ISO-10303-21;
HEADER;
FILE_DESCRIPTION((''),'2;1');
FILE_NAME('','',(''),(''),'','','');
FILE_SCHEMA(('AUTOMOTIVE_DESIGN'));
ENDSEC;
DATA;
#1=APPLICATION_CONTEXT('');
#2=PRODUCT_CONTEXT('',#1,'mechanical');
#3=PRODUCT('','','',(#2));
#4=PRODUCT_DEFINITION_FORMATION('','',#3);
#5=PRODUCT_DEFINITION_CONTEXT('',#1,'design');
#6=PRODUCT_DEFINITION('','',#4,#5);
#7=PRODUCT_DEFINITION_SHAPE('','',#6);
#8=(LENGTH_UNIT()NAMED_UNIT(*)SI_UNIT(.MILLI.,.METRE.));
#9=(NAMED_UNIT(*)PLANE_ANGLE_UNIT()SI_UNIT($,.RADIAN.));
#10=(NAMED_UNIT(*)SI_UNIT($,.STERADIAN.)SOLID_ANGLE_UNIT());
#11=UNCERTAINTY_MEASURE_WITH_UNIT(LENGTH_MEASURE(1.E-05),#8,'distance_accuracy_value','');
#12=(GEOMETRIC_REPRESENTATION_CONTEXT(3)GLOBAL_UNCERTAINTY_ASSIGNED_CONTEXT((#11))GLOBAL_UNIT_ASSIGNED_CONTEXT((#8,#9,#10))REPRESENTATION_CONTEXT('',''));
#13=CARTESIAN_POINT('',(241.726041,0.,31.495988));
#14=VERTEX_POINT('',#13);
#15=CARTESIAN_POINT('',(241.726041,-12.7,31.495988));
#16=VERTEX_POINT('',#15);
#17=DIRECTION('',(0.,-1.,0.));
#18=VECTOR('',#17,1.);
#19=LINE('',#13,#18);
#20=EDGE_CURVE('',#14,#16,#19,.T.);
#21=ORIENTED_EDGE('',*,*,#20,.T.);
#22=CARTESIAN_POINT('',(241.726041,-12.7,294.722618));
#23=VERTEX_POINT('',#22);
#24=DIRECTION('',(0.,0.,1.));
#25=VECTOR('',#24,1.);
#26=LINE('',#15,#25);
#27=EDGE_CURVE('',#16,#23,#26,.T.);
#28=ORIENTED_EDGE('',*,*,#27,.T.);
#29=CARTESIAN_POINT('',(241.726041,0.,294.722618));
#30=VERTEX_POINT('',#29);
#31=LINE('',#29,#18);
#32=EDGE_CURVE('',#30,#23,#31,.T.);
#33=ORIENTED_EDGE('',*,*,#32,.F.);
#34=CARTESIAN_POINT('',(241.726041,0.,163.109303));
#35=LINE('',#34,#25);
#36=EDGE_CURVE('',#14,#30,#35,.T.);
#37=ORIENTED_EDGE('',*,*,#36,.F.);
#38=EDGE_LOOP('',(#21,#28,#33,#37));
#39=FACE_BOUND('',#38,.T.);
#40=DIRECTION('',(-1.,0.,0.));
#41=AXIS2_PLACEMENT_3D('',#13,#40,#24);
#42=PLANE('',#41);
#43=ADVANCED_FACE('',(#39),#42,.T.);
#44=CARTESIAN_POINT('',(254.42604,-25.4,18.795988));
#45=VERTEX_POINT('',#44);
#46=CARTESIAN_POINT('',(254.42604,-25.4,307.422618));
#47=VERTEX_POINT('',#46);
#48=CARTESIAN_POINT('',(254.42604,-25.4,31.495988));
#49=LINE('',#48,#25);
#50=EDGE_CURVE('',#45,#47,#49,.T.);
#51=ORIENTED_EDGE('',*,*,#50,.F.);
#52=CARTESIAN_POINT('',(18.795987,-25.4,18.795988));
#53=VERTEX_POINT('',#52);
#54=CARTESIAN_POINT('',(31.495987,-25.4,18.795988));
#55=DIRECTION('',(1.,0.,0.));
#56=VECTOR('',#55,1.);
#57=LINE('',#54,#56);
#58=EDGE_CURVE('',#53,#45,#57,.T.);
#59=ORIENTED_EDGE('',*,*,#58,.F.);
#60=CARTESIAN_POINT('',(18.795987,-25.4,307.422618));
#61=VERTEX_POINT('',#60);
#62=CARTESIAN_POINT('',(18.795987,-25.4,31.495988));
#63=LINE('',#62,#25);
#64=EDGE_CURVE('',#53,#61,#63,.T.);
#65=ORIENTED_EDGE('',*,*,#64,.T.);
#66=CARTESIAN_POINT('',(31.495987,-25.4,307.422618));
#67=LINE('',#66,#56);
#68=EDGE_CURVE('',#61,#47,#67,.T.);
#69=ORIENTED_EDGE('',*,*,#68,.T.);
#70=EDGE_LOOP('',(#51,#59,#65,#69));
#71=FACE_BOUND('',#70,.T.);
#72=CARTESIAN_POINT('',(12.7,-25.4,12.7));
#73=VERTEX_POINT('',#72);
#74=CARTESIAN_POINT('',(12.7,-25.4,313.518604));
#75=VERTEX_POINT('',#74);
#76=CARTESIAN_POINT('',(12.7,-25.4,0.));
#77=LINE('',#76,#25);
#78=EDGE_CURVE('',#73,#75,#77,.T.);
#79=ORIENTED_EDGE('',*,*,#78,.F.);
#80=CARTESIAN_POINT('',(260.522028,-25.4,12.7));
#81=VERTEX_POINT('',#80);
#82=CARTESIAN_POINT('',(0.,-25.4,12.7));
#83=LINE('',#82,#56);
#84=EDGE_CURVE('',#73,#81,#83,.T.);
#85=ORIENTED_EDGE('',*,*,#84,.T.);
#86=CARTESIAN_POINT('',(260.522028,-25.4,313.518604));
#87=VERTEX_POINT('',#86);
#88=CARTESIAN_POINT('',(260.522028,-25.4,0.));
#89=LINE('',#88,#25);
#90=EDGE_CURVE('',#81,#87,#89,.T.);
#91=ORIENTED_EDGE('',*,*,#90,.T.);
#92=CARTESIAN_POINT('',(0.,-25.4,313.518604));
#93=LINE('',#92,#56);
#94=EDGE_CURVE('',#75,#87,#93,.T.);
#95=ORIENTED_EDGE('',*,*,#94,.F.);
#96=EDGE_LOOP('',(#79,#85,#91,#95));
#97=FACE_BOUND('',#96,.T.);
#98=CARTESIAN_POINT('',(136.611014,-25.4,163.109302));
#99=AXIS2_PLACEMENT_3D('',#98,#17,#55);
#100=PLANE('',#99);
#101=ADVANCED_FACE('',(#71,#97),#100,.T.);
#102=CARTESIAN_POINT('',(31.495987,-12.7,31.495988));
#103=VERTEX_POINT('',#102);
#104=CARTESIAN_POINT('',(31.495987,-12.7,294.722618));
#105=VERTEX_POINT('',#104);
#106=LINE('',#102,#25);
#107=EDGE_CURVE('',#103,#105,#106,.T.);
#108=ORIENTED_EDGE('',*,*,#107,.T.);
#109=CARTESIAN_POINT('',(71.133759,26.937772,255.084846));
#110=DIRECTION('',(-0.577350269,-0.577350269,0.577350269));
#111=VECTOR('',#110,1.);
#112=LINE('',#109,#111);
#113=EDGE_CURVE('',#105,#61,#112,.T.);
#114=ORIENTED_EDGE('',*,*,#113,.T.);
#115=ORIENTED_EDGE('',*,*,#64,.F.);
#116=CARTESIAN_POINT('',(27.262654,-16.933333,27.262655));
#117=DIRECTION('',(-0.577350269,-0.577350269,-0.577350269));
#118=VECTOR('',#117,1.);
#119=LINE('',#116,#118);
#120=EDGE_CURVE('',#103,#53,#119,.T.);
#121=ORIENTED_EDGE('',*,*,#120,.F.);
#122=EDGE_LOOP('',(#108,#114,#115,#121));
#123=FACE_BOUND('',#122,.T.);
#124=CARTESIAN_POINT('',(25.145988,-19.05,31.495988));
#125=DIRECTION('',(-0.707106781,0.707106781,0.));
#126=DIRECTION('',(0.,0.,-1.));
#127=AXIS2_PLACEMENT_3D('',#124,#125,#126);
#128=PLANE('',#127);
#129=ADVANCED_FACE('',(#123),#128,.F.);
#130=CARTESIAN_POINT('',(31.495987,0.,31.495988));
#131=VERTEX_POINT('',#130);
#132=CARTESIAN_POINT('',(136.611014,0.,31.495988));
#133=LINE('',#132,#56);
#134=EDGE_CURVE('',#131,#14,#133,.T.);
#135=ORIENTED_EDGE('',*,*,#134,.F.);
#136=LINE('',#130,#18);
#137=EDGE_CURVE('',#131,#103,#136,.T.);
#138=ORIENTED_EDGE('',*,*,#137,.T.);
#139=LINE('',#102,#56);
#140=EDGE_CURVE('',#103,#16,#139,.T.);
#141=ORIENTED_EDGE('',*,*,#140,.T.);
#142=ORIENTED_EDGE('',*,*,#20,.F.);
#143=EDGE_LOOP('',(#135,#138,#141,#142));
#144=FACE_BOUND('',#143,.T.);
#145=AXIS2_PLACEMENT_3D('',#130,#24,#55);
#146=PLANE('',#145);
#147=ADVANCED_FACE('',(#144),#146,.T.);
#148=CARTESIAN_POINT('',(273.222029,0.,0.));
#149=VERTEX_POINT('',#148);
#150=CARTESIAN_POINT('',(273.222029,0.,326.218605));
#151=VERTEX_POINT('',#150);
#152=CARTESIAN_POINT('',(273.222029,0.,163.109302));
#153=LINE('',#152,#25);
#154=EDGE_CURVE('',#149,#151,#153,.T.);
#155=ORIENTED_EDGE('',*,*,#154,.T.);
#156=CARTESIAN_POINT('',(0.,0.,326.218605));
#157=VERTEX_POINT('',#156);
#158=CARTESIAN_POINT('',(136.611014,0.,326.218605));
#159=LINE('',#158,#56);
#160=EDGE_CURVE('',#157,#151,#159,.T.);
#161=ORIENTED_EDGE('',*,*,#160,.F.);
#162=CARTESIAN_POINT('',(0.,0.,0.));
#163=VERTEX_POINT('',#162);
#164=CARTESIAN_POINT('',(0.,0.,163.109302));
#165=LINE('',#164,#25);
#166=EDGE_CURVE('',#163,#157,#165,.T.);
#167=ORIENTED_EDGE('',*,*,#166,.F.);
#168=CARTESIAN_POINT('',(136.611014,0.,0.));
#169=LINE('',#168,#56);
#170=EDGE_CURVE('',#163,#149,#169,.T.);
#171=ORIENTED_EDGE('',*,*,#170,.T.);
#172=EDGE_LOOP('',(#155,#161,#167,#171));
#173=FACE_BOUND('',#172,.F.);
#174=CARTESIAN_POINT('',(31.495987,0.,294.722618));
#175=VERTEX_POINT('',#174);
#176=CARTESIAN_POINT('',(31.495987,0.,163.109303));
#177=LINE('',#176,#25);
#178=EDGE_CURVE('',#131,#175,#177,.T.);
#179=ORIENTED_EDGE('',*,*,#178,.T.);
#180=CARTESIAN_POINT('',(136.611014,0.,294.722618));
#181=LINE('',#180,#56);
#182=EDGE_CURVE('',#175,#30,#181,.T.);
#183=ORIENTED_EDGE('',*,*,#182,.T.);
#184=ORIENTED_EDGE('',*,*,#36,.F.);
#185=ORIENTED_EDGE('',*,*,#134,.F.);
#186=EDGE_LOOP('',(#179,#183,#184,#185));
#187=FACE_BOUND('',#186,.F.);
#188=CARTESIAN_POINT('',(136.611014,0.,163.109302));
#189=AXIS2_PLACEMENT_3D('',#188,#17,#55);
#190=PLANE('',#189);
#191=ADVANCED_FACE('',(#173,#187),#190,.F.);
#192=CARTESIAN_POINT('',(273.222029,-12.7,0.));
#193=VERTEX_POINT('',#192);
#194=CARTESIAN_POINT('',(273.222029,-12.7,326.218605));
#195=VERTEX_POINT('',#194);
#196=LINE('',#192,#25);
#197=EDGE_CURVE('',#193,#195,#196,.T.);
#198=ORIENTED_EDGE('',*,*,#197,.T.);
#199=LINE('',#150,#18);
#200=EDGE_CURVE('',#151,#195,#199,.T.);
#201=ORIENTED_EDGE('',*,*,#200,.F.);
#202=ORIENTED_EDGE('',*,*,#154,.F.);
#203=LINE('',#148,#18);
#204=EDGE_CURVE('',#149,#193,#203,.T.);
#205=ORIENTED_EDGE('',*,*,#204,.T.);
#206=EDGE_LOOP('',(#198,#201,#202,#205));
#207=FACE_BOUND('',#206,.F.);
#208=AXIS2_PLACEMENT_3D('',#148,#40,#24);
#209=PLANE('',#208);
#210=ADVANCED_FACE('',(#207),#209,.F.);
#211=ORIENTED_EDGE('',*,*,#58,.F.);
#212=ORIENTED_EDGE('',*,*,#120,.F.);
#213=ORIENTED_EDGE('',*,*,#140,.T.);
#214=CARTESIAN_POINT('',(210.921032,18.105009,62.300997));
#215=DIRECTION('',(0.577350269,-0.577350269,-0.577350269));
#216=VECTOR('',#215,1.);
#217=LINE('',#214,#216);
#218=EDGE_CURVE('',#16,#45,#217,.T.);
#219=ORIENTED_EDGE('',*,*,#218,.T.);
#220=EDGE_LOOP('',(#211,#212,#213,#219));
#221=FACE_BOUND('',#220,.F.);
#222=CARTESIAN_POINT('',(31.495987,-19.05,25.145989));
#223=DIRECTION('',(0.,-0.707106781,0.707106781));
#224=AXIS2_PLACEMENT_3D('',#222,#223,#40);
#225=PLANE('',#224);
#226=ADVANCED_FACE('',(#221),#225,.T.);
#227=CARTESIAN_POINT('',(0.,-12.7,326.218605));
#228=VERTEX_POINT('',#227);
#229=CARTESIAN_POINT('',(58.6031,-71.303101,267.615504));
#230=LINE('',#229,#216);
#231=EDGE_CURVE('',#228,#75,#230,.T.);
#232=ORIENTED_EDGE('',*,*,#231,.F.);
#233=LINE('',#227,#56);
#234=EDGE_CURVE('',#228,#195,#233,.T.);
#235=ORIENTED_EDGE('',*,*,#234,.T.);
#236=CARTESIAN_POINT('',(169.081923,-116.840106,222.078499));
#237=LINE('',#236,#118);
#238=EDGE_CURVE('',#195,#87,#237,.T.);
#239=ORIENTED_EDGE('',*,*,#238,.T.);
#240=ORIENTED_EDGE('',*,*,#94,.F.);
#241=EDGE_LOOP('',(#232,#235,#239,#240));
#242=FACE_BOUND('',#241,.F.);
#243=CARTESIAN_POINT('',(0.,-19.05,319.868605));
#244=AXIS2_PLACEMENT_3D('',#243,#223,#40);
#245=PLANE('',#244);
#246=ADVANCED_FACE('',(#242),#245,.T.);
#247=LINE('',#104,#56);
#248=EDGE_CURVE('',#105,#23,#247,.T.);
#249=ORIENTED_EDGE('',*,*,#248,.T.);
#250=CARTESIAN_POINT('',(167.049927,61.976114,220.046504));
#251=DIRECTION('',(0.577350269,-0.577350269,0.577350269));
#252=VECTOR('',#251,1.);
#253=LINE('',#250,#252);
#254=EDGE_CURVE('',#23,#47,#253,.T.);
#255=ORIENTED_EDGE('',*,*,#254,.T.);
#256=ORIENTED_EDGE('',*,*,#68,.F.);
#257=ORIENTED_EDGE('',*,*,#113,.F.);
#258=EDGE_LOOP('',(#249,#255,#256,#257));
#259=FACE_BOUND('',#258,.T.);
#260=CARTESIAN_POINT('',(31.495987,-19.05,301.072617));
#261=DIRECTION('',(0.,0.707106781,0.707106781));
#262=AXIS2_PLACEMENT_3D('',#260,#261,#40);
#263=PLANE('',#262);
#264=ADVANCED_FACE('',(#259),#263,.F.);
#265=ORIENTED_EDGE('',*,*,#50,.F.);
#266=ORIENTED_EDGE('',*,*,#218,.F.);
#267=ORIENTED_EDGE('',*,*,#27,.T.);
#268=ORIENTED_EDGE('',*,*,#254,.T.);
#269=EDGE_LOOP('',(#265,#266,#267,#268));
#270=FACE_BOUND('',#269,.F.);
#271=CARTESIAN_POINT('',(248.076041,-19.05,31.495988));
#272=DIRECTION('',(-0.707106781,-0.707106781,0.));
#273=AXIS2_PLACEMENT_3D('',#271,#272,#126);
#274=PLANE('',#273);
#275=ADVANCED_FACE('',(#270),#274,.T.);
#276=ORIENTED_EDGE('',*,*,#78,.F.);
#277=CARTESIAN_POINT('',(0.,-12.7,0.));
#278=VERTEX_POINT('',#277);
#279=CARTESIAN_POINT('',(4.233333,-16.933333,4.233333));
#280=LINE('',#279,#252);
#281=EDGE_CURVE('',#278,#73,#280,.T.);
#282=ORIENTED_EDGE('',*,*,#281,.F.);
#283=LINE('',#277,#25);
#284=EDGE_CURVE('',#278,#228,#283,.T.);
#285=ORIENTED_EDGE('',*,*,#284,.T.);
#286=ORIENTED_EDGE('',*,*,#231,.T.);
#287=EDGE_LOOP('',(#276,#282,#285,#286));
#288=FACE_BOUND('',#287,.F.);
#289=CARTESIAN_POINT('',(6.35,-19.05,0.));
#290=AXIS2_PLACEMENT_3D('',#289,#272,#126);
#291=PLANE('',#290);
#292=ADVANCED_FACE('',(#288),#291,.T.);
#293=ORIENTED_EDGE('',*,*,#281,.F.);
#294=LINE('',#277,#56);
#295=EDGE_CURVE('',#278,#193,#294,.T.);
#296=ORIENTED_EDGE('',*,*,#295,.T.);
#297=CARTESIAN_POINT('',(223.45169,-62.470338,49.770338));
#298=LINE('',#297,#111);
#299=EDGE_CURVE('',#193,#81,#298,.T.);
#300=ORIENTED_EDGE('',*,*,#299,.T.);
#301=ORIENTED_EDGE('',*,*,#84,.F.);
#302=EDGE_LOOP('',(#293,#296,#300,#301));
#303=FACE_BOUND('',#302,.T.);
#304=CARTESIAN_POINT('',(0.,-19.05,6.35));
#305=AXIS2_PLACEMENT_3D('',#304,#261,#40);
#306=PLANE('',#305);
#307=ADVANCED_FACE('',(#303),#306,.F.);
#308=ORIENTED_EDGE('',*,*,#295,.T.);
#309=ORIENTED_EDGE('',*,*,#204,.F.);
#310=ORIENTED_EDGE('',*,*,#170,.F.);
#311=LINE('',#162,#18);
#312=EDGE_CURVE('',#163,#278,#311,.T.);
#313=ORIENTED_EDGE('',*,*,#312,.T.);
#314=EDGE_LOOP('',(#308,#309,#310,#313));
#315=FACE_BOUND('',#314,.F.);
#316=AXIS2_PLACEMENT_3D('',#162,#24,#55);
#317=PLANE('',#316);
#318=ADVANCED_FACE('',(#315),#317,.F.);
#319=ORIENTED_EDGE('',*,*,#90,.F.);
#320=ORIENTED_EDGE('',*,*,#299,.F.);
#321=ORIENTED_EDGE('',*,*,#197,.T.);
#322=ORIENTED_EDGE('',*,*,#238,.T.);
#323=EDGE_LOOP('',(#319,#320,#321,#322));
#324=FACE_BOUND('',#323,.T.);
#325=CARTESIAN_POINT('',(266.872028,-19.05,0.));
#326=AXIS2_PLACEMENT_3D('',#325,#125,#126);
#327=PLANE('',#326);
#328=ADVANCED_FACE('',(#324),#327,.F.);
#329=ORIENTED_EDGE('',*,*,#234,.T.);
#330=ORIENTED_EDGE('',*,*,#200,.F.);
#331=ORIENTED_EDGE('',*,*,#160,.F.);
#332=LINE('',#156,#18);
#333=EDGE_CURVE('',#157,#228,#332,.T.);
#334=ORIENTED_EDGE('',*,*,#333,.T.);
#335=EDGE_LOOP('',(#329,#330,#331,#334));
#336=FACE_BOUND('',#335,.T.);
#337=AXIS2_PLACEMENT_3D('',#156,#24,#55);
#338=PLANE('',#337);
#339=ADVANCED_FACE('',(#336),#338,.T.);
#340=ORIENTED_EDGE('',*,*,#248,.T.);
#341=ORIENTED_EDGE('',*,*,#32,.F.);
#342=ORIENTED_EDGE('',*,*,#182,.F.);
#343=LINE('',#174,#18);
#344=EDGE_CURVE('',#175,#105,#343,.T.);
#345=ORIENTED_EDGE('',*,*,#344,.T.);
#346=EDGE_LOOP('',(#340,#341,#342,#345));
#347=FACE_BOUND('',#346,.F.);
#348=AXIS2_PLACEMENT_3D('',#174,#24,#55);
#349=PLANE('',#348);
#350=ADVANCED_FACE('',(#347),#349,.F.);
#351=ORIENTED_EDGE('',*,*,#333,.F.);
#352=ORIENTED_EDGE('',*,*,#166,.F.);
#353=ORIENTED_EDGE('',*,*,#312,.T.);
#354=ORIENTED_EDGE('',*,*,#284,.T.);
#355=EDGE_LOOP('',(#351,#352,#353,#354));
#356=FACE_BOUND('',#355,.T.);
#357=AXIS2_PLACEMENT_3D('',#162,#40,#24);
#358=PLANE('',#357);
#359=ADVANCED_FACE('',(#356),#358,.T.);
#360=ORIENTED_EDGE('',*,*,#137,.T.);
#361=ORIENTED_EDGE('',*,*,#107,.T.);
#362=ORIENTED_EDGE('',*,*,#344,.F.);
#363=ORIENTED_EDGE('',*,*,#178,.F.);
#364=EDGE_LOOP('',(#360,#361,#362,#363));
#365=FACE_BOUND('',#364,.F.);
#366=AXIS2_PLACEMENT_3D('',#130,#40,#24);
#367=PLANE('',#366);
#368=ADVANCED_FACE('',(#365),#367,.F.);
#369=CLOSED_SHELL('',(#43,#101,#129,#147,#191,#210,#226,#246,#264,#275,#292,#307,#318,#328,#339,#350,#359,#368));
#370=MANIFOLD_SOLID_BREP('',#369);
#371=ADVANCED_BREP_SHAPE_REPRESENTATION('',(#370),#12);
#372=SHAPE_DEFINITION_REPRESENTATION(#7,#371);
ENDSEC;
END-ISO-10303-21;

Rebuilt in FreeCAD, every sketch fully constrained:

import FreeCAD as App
import Part
import Sketcher
Q = App.Units.Quantity


def edges_at(feature, points):
    """Names of the edges that pass closest to the given points."""
    edges = feature.Shape.Edges
    near = lambda p: min(range(len(edges)), key=lambda i: edges[i].distToShape(Part.Vertex(*p))[0])
    return sorted({f"Edge{near(p) + 1}" for p in points})

doc = App.newDocument("Part")
body = doc.addObject("PartDesign::Body", "Body")

sketch1 = body.newObject("Sketcher::SketchObject", "Sketch")
sketch1.AttachmentSupport = (doc.getObject("XZ_Plane"), [""])
sketch1.MapMode = "FlatFace"
sketch1.addGeometry([
    Part.LineSegment(App.Vector(0, 326, 0), App.Vector(0, 0, 0)),
    Part.LineSegment(App.Vector(0, 0, 0), App.Vector(273, 0, 0)),
    Part.LineSegment(App.Vector(273, 0, 0), App.Vector(273, 326, 0)),
    Part.LineSegment(App.Vector(273, 326, 0), App.Vector(0, 326, 0)),
    Part.LineSegment(App.Vector(242, 31, 0), App.Vector(31, 31, 0)),
    Part.LineSegment(App.Vector(31, 31, 0), App.Vector(31, 295, 0)),
    Part.LineSegment(App.Vector(31, 295, 0), App.Vector(242, 295, 0)),
    Part.LineSegment(App.Vector(242, 295, 0), App.Vector(242, 31, 0)),
], False)
sketch1.addConstraint([
    Sketcher.Constraint("Coincident", 0, 2, 1, 1),
    Sketcher.Constraint("Coincident", 1, 2, 2, 1),
    Sketcher.Constraint("Coincident", 2, 2, 3, 1),
    Sketcher.Constraint("Coincident", 3, 2, 0, 1),
    Sketcher.Constraint("Coincident", 4, 2, 5, 1),
    Sketcher.Constraint("Coincident", 5, 2, 6, 1),
    Sketcher.Constraint("Coincident", 6, 2, 7, 1),
    Sketcher.Constraint("Coincident", 7, 2, 4, 1),
    Sketcher.Constraint("Vertical", 0),
    Sketcher.Constraint("Horizontal", 1),
    Sketcher.Constraint("Vertical", 2),
    Sketcher.Constraint("Horizontal", 3),
    Sketcher.Constraint("Horizontal", 4),
    Sketcher.Constraint("Vertical", 5),
    Sketcher.Constraint("Horizontal", 6),
    Sketcher.Constraint("Vertical", 7),
    Sketcher.Constraint("Coincident", 0, 2, -1, 1),
    Sketcher.Constraint("DistanceX", 1, 1, 1, 2, Q("273.222029 mm")),
    Sketcher.Constraint("DistanceY", 5, 1, 5, 2, Q("263.226629 mm")),
    Sketcher.Constraint("DistanceX", 4, 2, 4, 1, Q("210.230053 mm")),
    Sketcher.Constraint("DistanceY", 0, 2, 0, 1, Q("326.218605 mm")),
    Sketcher.Constraint("DistanceY", -1, 1, 4, 2, Q("31.495988 mm")),
    Sketcher.Constraint("DistanceX", -1, 1, 6, 2, Q("241.726041 mm")),
])
pad1 = body.newObject("PartDesign::Pad", "Pad")
pad1.Profile = sketch1
pad1.Length = Q("1 in")
doc.recompute()

chamfer = body.newObject("PartDesign::Chamfer", "Chamfer")
chamfer.Base = (pad1, edges_at(pad1, [
    (0, -25.4, 163.109),
    (136.611, -25.4, 0),
    (273.222, -25.4, 163.109),
    (136.611, -25.4, 326.219),
    (31.496, -25.4, 163.109),
    (136.611, -25.4, 294.723),
    (241.726, -25.4, 163.109),
    (136.611, -25.4, 31.496),
]))
chamfer.Size = Q("0.5 in")

doc.recompute()
